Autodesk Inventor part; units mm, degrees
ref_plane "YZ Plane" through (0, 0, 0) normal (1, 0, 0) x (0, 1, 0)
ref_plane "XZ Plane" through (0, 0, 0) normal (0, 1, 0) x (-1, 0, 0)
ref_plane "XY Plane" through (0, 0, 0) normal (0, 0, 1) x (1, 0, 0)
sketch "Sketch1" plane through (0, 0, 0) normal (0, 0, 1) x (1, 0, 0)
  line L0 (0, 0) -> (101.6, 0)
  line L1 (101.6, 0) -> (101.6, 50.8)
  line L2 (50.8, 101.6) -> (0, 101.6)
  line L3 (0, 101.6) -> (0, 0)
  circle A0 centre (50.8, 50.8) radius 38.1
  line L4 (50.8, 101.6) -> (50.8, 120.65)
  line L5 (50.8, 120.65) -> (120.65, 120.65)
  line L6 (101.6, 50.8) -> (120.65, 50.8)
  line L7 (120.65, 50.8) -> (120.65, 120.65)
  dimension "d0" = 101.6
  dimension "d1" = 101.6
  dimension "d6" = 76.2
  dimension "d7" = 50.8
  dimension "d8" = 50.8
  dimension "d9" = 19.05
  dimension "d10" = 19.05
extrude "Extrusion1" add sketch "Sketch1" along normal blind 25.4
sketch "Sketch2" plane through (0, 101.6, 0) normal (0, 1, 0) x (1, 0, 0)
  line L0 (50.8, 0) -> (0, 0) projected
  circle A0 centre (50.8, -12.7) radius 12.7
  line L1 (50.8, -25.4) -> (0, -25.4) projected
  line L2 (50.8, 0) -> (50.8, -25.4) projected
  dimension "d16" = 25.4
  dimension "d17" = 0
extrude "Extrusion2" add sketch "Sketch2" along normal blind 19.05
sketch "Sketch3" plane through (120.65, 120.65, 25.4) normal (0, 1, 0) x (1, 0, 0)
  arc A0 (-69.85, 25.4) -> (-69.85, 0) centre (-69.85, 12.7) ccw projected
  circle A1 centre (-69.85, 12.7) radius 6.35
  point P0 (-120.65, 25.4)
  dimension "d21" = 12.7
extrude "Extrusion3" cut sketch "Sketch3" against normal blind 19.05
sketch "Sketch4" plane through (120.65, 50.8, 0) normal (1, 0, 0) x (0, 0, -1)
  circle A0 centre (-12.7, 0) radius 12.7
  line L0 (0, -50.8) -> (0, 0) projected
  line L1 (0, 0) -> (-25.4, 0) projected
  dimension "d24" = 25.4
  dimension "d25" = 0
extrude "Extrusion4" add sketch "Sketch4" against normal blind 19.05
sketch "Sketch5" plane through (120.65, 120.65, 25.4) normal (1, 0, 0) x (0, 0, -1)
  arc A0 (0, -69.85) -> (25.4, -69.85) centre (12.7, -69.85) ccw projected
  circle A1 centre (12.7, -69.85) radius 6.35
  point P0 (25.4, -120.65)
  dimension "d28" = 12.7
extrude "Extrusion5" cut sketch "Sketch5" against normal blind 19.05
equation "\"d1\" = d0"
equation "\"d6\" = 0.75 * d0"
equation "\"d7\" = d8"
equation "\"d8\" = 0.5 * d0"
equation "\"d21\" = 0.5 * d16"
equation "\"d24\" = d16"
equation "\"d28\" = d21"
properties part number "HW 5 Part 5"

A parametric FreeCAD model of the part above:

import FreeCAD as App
import Part
import Sketcher
Q = App.Units.Quantity

doc = App.newDocument("Part")
body = doc.addObject("PartDesign::Body", "Body")

# Sketch on XY plane
sketch1 = body.newObject("Sketcher::SketchObject", "Sketch")
sketch1.AttachmentSupport = (doc.getObject("XY_Plane"), [""])
sketch1.MapMode = "FlatFace"
sketch1.addGeometry([
    Part.LineSegment(App.Vector(0, 101.6, 0), App.Vector(0, 0, 0)),  # 0
    Part.LineSegment(App.Vector(0, 0, 0), App.Vector(101.6, 0, 0)),  # 1
    Part.LineSegment(App.Vector(101.6, 0, 0), App.Vector(101.6, 50.8, 0)),  # 2
    Part.LineSegment(App.Vector(101.6, 50.8, 0), App.Vector(120.65, 50.8, 0)),  # 3
    Part.LineSegment(App.Vector(120.65, 50.8, 0), App.Vector(120.65, 120.65, 0)),  # 4
    Part.LineSegment(App.Vector(120.65, 120.65, 0), App.Vector(50.8, 120.65, 0)),  # 5
    Part.LineSegment(App.Vector(50.8, 120.65, 0), App.Vector(50.8, 101.6, 0)),  # 6
    Part.LineSegment(App.Vector(50.8, 101.6, 0), App.Vector(0, 101.6, 0)),  # 7
    Part.Circle(App.Vector(50.8, 50.8, 0), App.Vector(0, 0, 1), 38.1),  # 8
], False)
sketch1.addConstraint([
    Sketcher.Constraint("Coincident", 0, 2, 1, 1),
    Sketcher.Constraint("Coincident", 1, 2, 2, 1),
    Sketcher.Constraint("Coincident", 2, 2, 3, 1),
    Sketcher.Constraint("Coincident", 3, 2, 4, 1),
    Sketcher.Constraint("Coincident", 4, 2, 5, 1),
    Sketcher.Constraint("Coincident", 5, 2, 6, 1),
    Sketcher.Constraint("Coincident", 6, 2, 7, 1),
    Sketcher.Constraint("Coincident", 7, 2, 0, 1),
    Sketcher.Constraint("Vertical", 0),
    Sketcher.Constraint("Horizontal", 1),
    Sketcher.Constraint("Vertical", 2),
    Sketcher.Constraint("Horizontal", 3),
    Sketcher.Constraint("Vertical", 4),
    Sketcher.Constraint("Horizontal", 5),
    Sketcher.Constraint("Vertical", 6),
    Sketcher.Constraint("Horizontal", 7),
    Sketcher.Constraint("Coincident", 0, 2, -1, 1),
    Sketcher.Constraint("Horizontal", 8, 3, 2, 2),
    Sketcher.Constraint("Vertical", 8, 3, 5, 2),
    Sketcher.Constraint("Equal", 1, 0),
    Sketcher.Constraint("Equal", 7, 2),
    Sketcher.Constraint("Equal", 5, 4),
    Sketcher.Constraint("Diameter", 8, Q("3 in")),
    Sketcher.Constraint("DistanceX", 1, 1, 1, 2, Q("4 in")),
    Sketcher.Constraint("DistanceX", 7, 2, 7, 1, Q("2 in")),
    Sketcher.Constraint("DistanceX", 3, 1, 3, 2, Q("0.75 in")),
])
pad1 = body.newObject("PartDesign::Pad", "Pad")
pad1.Profile = sketch1
pad1.Length = Q("1 in")

# Sketch on XZ plane
sketch2 = body.newObject("Sketcher::SketchObject", "Sketch001")
sketch2.AttachmentSupport = (doc.getObject("XZ_Plane"), [""])
sketch2.MapMode = "FlatFace"
sketch2.AttachmentOffset = App.Placement(App.Vector(0, 0, -4 * 25.4), App.Rotation())
sketch2.addGeometry(Part.Circle(App.Vector(50.8, 12.7, 0), App.Vector(0, 0, 1), 12.7), False)
sketch2.addConstraint([
    Sketcher.Constraint("Diameter", 0, Q("1 in")),
    Sketcher.Constraint("DistanceX", -1, 1, 0, 3, Q("2 in")),
    Sketcher.Constraint("DistanceY", -1, 1, 0, 3, Q("0.5 in")),
])
pad2 = body.newObject("PartDesign::Pad", "Pad001")
pad2.Profile = sketch2
pad2.Length = Q("0.75 in")
pad2.Reversed = True

# Sketch on XZ plane
sketch3 = body.newObject("Sketcher::SketchObject", "Sketch002")
sketch3.AttachmentSupport = (doc.getObject("XZ_Plane"), [""])
sketch3.MapMode = "FlatFace"
sketch3.AttachmentOffset = App.Placement(App.Vector(0, 0, -4.75 * 25.4), App.Rotation())
sketch3.addGeometry(Part.Circle(App.Vector(50.8, 12.7, 0), App.Vector(0, 0, 1), 6.35), False)
sketch3.addConstraint([
    Sketcher.Constraint("Diameter", 0, Q("0.5 in")),
    Sketcher.Constraint("DistanceY", -1, 1, 0, 3, Q("0.5 in")),
    Sketcher.Constraint("DistanceX", -1, 1, 0, 3, Q("2 in")),
])
pocket1 = body.newObject("PartDesign::Pocket", "Pocket")
pocket1.Profile = sketch3
pocket1.Length = Q("0.75 in")
pocket1.Reversed = True

# Sketch on YZ plane
sketch4 = body.newObject("Sketcher::SketchObject", "Sketch003")
sketch4.AttachmentSupport = (doc.getObject("YZ_Plane"), [""])
sketch4.MapMode = "FlatFace"
sketch4.AttachmentOffset = App.Placement(App.Vector(0, 0, 4.75 * 25.4), App.Rotation())
sketch4.addGeometry(Part.Circle(App.Vector(50.8, 12.7, 0), App.Vector(0, 0, 1), 12.7), False)
sketch4.addConstraint([
    Sketcher.Constraint("Diameter", 0, Q("1 in")),
    Sketcher.Constraint("DistanceX", -1, 1, 0, 3, Q("2 in")),
    Sketcher.Constraint("DistanceY", -1, 1, 0, 3, Q("0.5 in")),
])
pad3 = body.newObject("PartDesign::Pad", "Pad002")
pad3.Profile = sketch4
pad3.Length = Q("0.75 in")
pad3.Reversed = True

# Sketch on YZ plane
sketch5 = body.newObject("Sketcher::SketchObject", "Sketch004")
sketch5.AttachmentSupport = (doc.getObject("YZ_Plane"), [""])
sketch5.MapMode = "FlatFace"
sketch5.AttachmentOffset = App.Placement(App.Vector(0, 0, 4.75 * 25.4), App.Rotation())
sketch5.addGeometry(Part.Circle(App.Vector(50.8, 12.7, 0), App.Vector(0, 0, 1), 6.35), False)
sketch5.addConstraint([
    Sketcher.Constraint("Diameter", 0, Q("0.5 in")),
    Sketcher.Constraint("DistanceY", -1, 1, 0, 3, Q("0.5 in")),
    Sketcher.Constraint("DistanceX", -1, 1, 0, 3, Q("2 in")),
])
pocket2 = body.newObject("PartDesign::Pocket", "Pocket001")
pocket2.Profile = sketch5
pocket2.Length = Q("0.75 in")

doc.recompute()
